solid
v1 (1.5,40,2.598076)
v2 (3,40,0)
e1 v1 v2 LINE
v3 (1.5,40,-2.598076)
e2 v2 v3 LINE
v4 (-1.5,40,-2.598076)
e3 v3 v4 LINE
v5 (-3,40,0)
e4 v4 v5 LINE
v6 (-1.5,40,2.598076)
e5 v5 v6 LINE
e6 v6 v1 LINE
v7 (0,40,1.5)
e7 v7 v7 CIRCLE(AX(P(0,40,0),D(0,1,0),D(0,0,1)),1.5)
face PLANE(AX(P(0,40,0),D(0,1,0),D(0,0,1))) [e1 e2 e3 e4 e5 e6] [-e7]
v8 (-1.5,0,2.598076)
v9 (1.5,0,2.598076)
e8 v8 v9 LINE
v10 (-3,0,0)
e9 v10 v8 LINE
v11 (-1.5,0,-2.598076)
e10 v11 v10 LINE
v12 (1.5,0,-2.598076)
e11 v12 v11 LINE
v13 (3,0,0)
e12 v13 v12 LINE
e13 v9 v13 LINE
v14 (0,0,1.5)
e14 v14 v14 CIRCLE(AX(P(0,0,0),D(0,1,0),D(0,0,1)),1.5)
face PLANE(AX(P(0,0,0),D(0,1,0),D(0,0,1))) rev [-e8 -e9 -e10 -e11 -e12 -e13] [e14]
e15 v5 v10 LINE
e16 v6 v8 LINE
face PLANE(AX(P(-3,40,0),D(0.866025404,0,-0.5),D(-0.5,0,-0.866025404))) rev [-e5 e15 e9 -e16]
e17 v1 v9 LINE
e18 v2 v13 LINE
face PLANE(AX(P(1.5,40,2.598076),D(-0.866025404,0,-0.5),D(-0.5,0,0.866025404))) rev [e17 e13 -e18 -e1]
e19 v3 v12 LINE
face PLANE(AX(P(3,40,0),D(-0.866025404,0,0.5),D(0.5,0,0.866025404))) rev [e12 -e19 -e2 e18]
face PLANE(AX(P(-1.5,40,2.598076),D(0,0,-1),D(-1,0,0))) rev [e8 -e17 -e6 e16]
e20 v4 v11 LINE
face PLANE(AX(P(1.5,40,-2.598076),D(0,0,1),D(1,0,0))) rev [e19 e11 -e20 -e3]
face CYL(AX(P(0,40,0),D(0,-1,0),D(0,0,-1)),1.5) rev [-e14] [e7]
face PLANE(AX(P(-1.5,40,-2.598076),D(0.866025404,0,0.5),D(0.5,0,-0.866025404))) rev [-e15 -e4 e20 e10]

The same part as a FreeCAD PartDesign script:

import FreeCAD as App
import Part
import Sketcher
from FreeCAD import Vector
Q = App.Units.Quantity

doc = App.newDocument("Part")
body = doc.addObject("PartDesign::Body", "Body")

# Sketch on XZ plane
sketch1 = body.newObject("Sketcher::SketchObject", "Sketch")
sketch1.AttachmentSupport = (doc.getObject("XZ_Plane"), [""])
sketch1.MapMode = "FlatFace"
sketch1.addGeometry([
    Part.LineSegment(Vector(3, 0, 0), Vector(1.5, -2.598076, 0)),  # 0
    Part.LineSegment(Vector(1.5, -2.598076, 0), Vector(-1.5, -2.598076, 0)),  # 1
    Part.LineSegment(Vector(-1.5, -2.598076, 0), Vector(-3, 0, 0)),  # 2
    Part.LineSegment(Vector(-3, 0, 0), Vector(-1.5, 2.598076, 0)),  # 3
    Part.LineSegment(Vector(-1.5, 2.598076, 0), Vector(1.5, 2.598076, 0)),  # 4
    Part.LineSegment(Vector(1.5, 2.598076, 0), Vector(3, 0, 0)),  # 5
    Part.Circle(Vector(0, 0, 0), Vector(0, 0, 1), 1.5),  # 6
], False)
sketch1.addConstraint([
    Sketcher.Constraint("Coincident", 0, 2, 1, 1),
    Sketcher.Constraint("Coincident", 1, 2, 2, 1),
    Sketcher.Constraint("Coincident", 2, 2, 3, 1),
    Sketcher.Constraint("Coincident", 3, 2, 4, 1),
    Sketcher.Constraint("Coincident", 4, 2, 5, 1),
    Sketcher.Constraint("Coincident", 5, 2, 0, 1),
    Sketcher.Constraint("Horizontal", 1),
    Sketcher.Constraint("Horizontal", 4),
    Sketcher.Constraint("Coincident", 6, 3, -1, 1),
    Sketcher.Constraint("Symmetric", 0, 2, 3, 2, -1, 1),
    Sketcher.Constraint("Symmetric", 2, 2, 5, 2, -1, 1),
    Sketcher.Constraint("PointOnObject", 2, 2, -1),
    Sketcher.Constraint("Parallel", 2, 5),
    Sketcher.Constraint("Vertical", 1, 2, 3, 2),
    Sketcher.Constraint("Diameter", 6, 3.0),
    Sketcher.Constraint("DistanceX", 1, 2, 1, 1, 3.0),
    Sketcher.Constraint("Angle", 0, Q("-120 deg")),
    Sketcher.Constraint("Distance", 0, 3.0),
])
pad1 = body.newObject("PartDesign::Pad", "Pad")
pad1.Profile = sketch1
pad1.Length = 40
pad1.Reversed = True

doc.recompute()
